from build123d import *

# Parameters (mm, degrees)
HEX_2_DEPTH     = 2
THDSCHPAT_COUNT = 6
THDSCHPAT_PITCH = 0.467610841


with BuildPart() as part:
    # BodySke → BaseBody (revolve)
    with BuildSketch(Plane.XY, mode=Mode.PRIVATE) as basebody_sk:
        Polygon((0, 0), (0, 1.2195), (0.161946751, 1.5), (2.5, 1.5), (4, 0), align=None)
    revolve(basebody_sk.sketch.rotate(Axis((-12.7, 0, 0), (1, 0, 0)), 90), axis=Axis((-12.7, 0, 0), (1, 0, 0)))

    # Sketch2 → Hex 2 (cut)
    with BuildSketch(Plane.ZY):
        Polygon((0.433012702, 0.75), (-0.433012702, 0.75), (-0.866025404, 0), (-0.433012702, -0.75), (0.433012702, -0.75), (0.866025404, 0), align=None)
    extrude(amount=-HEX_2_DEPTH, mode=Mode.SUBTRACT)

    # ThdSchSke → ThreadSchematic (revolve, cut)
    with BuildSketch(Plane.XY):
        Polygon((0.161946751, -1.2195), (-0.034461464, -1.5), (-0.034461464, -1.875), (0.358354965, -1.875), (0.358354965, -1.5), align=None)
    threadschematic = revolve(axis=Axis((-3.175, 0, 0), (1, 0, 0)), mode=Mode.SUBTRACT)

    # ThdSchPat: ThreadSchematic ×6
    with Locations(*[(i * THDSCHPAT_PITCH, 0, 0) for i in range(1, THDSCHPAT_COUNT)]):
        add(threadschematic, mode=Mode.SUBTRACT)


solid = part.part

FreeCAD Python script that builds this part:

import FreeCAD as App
import Part
import Sketcher

V = App.Vector
Q = App.Units.Quantity

doc = App.newDocument("Part")
body = doc.addObject("PartDesign::Body", "Body")

# Sketch on XY plane
sketch1 = doc.addObject("Sketcher::SketchObject", "Sketch")
body.addObject(sketch1)
sketch1.AttachmentSupport = (doc.XY_Plane, [""])
sketch1.MapMode = "FlatFace"
sketch1.addGeometry([
    Part.LineSegment(V(0, 1.22, 0), V(0, 0, 0)),  # 0
    Part.LineSegment(V(0, 0, 0), V(4, 0, 0)),  # 1
    Part.LineSegment(V(4, 0, 0), V(2.5, 1.5, 0)),  # 2
    Part.LineSegment(V(2.5, 1.5, 0), V(0.16, 1.5, 0)),  # 3
    Part.LineSegment(V(0.16, 1.5, 0), V(0, 1.22, 0)),  # 4
], False)
sketch1.addConstraint([
    Sketcher.Constraint("Coincident", 0, 2, 1, 1),
    Sketcher.Constraint("Coincident", 1, 2, 2, 1),
    Sketcher.Constraint("Coincident", 2, 2, 3, 1),
    Sketcher.Constraint("Coincident", 3, 2, 4, 1),
    Sketcher.Constraint("Coincident", 4, 2, 0, 1),
    Sketcher.Constraint("Vertical", 0),
    Sketcher.Constraint("Horizontal", 1),
    Sketcher.Constraint("Horizontal", 3),
    Sketcher.Constraint("Coincident", 0, 2, -1, 1),
    Sketcher.Constraint("DistanceX", 1, 1, 1, 2, Q("4 mm")),
    Sketcher.Constraint("Angle", 2, Q("135 deg")),
    Sketcher.Constraint("Angle", 4, Q("-120 deg")),
    Sketcher.Constraint("DistanceX", -1, 1, 2, 2, Q("2.5 mm")),
    Sketcher.Constraint("DistanceY", 0, 2, 0, 1, Q("1.2195 mm")),
])
revolution = doc.addObject("PartDesign::Revolution", "Revolution")
body.addObject(revolution)
revolution.Profile = sketch1
revolution.ReferenceAxis = (sketch1, ["H_Axis"])
revolution.Angle = 360

# Sketch on YZ plane
sketch2 = doc.addObject("Sketcher::SketchObject", "Sketch001")
body.addObject(sketch2)
sketch2.AttachmentSupport = (doc.YZ_Plane, [""])
sketch2.MapMode = "FlatFace"
sketch2.addGeometry([
    Part.LineSegment(V(0.8, 0.4, 0), V(0.8, -0.4, 0)),  # 0
    Part.LineSegment(V(0.8, -0.4, 0), V(0, -0.9, 0)),  # 1
    Part.LineSegment(V(0, -0.9, 0), V(-0.8, -0.4, 0)),  # 2
    Part.LineSegment(V(-0.8, -0.4, 0), V(-0.8, 0.4, 0)),  # 3
    Part.LineSegment(V(-0.8, 0.4, 0), V(0, 0.9, 0)),  # 4
    Part.LineSegment(V(0, 0.9, 0), V(0.8, 0.4, 0)),  # 5
], False)
sketch2.addConstraint([
    Sketcher.Constraint("Coincident", 0, 2, 1, 1),
    Sketcher.Constraint("Coincident", 1, 2, 2, 1),
    Sketcher.Constraint("Coincident", 2, 2, 3, 1),
    Sketcher.Constraint("Coincident", 3, 2, 4, 1),
    Sketcher.Constraint("Coincident", 4, 2, 5, 1),
    Sketcher.Constraint("Coincident", 5, 2, 0, 1),
    Sketcher.Constraint("Vertical", 0),
    Sketcher.Constraint("Vertical", 3),
    Sketcher.Constraint("Symmetric", 0, 2, 3, 2, -1, 1),
    Sketcher.Constraint("Symmetric", 1, 2, 4, 2, -1, 1),
    Sketcher.Constraint("PointOnObject", 1, 2, -2),
    Sketcher.Constraint("Parallel", 2, 5),
    Sketcher.Constraint("Horizontal", 0, 2, 2, 2),
    Sketcher.Constraint("Angle", 1, Q("-150 deg")),
    Sketcher.Constraint("DistanceX", 2, 2, 0, 2, Q("1.5 mm")),
    Sketcher.Constraint("DistanceY", 0, 2, 0, 1, Q("0.866025 mm")),
])
pocket1 = doc.addObject("PartDesign::Pocket", "Pocket")
body.addObject(pocket1)
pocket1.Profile = sketch2
pocket1.Length = 2
pocket1.Reversed = True

# Sketch on XY plane
sketch3 = doc.addObject("Sketcher::SketchObject", "Sketch002")
body.addObject(sketch3)
sketch3.AttachmentSupport = (doc.XY_Plane, [""])
sketch3.MapMode = "FlatFace"
sketch3.addGeometry([
    Part.LineSegment(V(0.16, -1.22, 0), V(-0.03, -1.5, 0)),  # 0
    Part.LineSegment(V(-0.03, -1.5, 0), V(-0.03, -1.88, 0)),  # 1
    Part.LineSegment(V(-0.03, -1.88, 0), V(0.36, -1.88, 0)),  # 2
    Part.LineSegment(V(0.36, -1.88, 0), V(0.36, -1.5, 0)),  # 3
    Part.LineSegment(V(0.36, -1.5, 0), V(0.16, -1.22, 0)),  # 4
], False)
sketch3.addConstraint([
    Sketcher.Constraint("Coincident", 0, 2, 1, 1),
    Sketcher.Constraint("Coincident", 1, 2, 2, 1),
    Sketcher.Constraint("Coincident", 2, 2, 3, 1),
    Sketcher.Constraint("Coincident", 3, 2, 4, 1),
    Sketcher.Constraint("Coincident", 4, 2, 0, 1),
    Sketcher.Constraint("Vertical", 1),
    Sketcher.Constraint("Horizontal", 2),
    Sketcher.Constraint("Vertical", 3),
    Sketcher.Constraint("Horizontal", 0, 2, 3, 2),
    Sketcher.Constraint("Equal", 0, 4),
    Sketcher.Constraint("Angle", 0, Q("-125 deg")),
    Sketcher.Constraint("DistanceY", 0, 2, -1, 1, Q("1.5 mm")),
    Sketcher.Constraint("DistanceY", 1, 2, 1, 1, Q("0.375 mm")),
    Sketcher.Constraint("DistanceY", 4, 2, -1, 1, Q("1.2195 mm")),
    Sketcher.Constraint("DistanceX", 0, 2, -1, 1, Q("0.034461 mm")),
])
groove = doc.addObject("PartDesign::Groove", "Groove")
body.addObject(groove)
groove.Profile = sketch3
groove.ReferenceAxis = (sketch3, ["H_Axis"])
groove.Angle = 360
doc.recompute()

linearpattern = doc.addObject("PartDesign::LinearPattern", "LinearPattern")
body.addObject(linearpattern)
linearpattern.Originals = [groove]
linearpattern.Direction = (doc.X_Axis, [""])
linearpattern.Mode = "offset"
linearpattern.Offset = 0.467611
linearpattern.Occurrences = 6
body.Tip = linearpattern

doc.recompute()
